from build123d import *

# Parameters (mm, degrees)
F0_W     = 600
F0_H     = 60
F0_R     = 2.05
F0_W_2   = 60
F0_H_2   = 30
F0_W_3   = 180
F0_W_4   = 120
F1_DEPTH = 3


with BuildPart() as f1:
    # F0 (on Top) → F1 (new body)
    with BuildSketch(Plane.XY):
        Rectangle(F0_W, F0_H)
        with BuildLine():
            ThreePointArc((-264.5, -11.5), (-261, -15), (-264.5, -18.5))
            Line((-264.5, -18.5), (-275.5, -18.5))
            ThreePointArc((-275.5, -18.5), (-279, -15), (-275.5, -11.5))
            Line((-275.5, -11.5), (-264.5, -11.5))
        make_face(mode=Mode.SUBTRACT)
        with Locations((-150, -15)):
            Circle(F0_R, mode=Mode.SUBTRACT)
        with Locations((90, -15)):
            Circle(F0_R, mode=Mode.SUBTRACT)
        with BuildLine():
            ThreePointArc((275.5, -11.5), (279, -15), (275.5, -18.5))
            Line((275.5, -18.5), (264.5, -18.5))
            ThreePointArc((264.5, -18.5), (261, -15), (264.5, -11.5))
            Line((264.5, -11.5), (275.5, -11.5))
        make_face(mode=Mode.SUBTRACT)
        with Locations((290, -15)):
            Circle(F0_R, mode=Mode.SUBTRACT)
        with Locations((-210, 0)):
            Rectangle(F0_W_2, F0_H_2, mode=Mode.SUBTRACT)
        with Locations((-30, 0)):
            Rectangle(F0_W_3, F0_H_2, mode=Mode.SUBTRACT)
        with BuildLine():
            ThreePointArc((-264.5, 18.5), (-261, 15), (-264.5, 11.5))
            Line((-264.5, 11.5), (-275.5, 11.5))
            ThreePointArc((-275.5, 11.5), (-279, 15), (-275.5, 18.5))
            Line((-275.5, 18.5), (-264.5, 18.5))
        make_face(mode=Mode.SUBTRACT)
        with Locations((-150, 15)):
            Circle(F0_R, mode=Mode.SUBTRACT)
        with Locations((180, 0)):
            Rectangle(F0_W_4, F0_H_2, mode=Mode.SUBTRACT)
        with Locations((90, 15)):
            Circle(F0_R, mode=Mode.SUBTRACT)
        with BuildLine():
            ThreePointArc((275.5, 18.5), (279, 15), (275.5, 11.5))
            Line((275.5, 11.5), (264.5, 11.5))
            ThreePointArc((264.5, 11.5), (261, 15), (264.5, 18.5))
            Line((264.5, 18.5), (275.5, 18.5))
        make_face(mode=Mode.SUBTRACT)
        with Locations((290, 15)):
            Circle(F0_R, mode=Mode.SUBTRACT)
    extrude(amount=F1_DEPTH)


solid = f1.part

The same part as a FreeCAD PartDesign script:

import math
import FreeCAD as App
import Part
import Sketcher

V = App.Vector

doc = App.newDocument("Part")
body = doc.addObject("PartDesign::Body", "Body")

# Sketch on XY plane
sketch1 = doc.addObject("Sketcher::SketchObject", "Sketch")
body.addObject(sketch1)
sketch1.AttachmentSupport = (doc.XY_Plane, [""])
sketch1.MapMode = "FlatFace"
sketch1.addGeometry(Part.LineSegment(V(-300, 30, 0), V(-300, -30, 0)), False)
sketch1.addGeometry(Part.LineSegment(V(-300, -30, 0), V(300, -30, 0)), False)
sketch1.addGeometry(Part.LineSegment(V(300, -30, 0), V(300, 30, 0)), False)
sketch1.addGeometry(Part.LineSegment(V(300, 30, 0), V(-300, 30, 0)), False)
sketch1.addGeometry(Part.LineSegment(V(-275.5, -11.5, 0), V(-264.5, -11.5, 0)), False)
sketch1.addGeometry(Part.ArcOfCircle(Part.Circle(V(-264.5, -15, 0), V(0, 0, 1), 3.5), math.radians(-90), math.radians(90)), False)
sketch1.addGeometry(Part.LineSegment(V(-264.5, -18.5, 0), V(-275.5, -18.5, 0)), False)
sketch1.addGeometry(Part.ArcOfCircle(Part.Circle(V(-275.5, -15, 0), V(0, 0, 1), 3.5), math.radians(90), math.radians(270)), False)
sketch1.addGeometry(Part.Circle(V(-150, -15, 0), V(0, 0, 1), 2), False)
sketch1.addGeometry(Part.Circle(V(90, -15, 0), V(0, 0, 1), 2), False)
sketch1.addGeometry(Part.LineSegment(V(264.5, -11.5, 0), V(275.5, -11.5, 0)), False)
sketch1.addGeometry(Part.ArcOfCircle(Part.Circle(V(275.5, -15, 0), V(0, 0, 1), 3.5), math.radians(-90), math.radians(90)), False)
sketch1.addGeometry(Part.LineSegment(V(275.5, -18.5, 0), V(264.5, -18.5, 0)), False)
sketch1.addGeometry(Part.ArcOfCircle(Part.Circle(V(264.5, -15, 0), V(0, 0, 1), 3.5), math.radians(90), math.radians(270)), False)
sketch1.addGeometry(Part.Circle(V(290, -15, 0), V(0, 0, 1), 2), False)
sketch1.addGeometry(Part.LineSegment(V(-180, -15, 0), V(-240, -15, 0)), False)
sketch1.addGeometry(Part.LineSegment(V(-240, -15, 0), V(-240, 15, 0)), False)
sketch1.addGeometry(Part.LineSegment(V(-240, 15, 0), V(-180, 15, 0)), False)
sketch1.addGeometry(Part.LineSegment(V(-180, 15, 0), V(-180, -15, 0)), False)
sketch1.addGeometry(Part.LineSegment(V(60, -15, 0), V(-120, -15, 0)), False)
sketch1.addGeometry(Part.LineSegment(V(-120, -15, 0), V(-120, 15, 0)), False)
sketch1.addGeometry(Part.LineSegment(V(-120, 15, 0), V(60, 15, 0)), False)
sketch1.addGeometry(Part.LineSegment(V(60, 15, 0), V(60, -15, 0)), False)
sketch1.addGeometry(Part.LineSegment(V(-275.5, 18.5, 0), V(-264.5, 18.5, 0)), False)
sketch1.addGeometry(Part.ArcOfCircle(Part.Circle(V(-264.5, 15, 0), V(0, 0, 1), 3.5), math.radians(-90), math.radians(90)), False)
sketch1.addGeometry(Part.LineSegment(V(-264.5, 11.5, 0), V(-275.5, 11.5, 0)), False)
sketch1.addGeometry(Part.ArcOfCircle(Part.Circle(V(-275.5, 15, 0), V(0, 0, 1), 3.5), math.radians(90), math.radians(270)), False)
sketch1.addGeometry(Part.Circle(V(-150, 15, 0), V(0, 0, 1), 2), False)
sketch1.addGeometry(Part.LineSegment(V(240, -15, 0), V(120, -15, 0)), False)
sketch1.addGeometry(Part.LineSegment(V(120, -15, 0), V(120, 15, 0)), False)
sketch1.addGeometry(Part.LineSegment(V(120, 15, 0), V(240, 15, 0)), False)
sketch1.addGeometry(Part.LineSegment(V(240, 15, 0), V(240, -15, 0)), False)
sketch1.addGeometry(Part.Circle(V(90, 15, 0), V(0, 0, 1), 2), False)
sketch1.addGeometry(Part.LineSegment(V(264.5, 18.5, 0), V(275.5, 18.5, 0)), False)
sketch1.addGeometry(Part.ArcOfCircle(Part.Circle(V(275.5, 15, 0), V(0, 0, 1), 3.5), math.radians(-90), math.radians(90)), False)
sketch1.addGeometry(Part.LineSegment(V(275.5, 11.5, 0), V(264.5, 11.5, 0)), False)
sketch1.addGeometry(Part.ArcOfCircle(Part.Circle(V(264.5, 15, 0), V(0, 0, 1), 3.5), math.radians(90), math.radians(270)), False)
sketch1.addGeometry(Part.Circle(V(290, 15, 0), V(0, 0, 1), 2), False)
sketch1.addConstraint(Sketcher.Constraint("Coincident", 0, 2, 1, 1))
sketch1.addConstraint(Sketcher.Constraint("Coincident", 1, 2, 2, 1))
sketch1.addConstraint(Sketcher.Constraint("Coincident", 2, 2, 3, 1))
sketch1.addConstraint(Sketcher.Constraint("Coincident", 3, 2, 0, 1))
sketch1.addConstraint(Sketcher.Constraint("Tangent", 4, 2, 5, 2))
sketch1.addConstraint(Sketcher.Constraint("Tangent", 5, 1, 6, 1))
sketch1.addConstraint(Sketcher.Constraint("Tangent", 6, 2, 7, 2))
sketch1.addConstraint(Sketcher.Constraint("Tangent", 7, 1, 4, 1))
sketch1.addConstraint(Sketcher.Constraint("Tangent", 10, 2, 11, 2))
sketch1.addConstraint(Sketcher.Constraint("Tangent", 11, 1, 12, 1))
sketch1.addConstraint(Sketcher.Constraint("Tangent", 12, 2, 13, 2))
sketch1.addConstraint(Sketcher.Constraint("Tangent", 13, 1, 10, 1))
sketch1.addConstraint(Sketcher.Constraint("Coincident", 15, 2, 16, 1))
sketch1.addConstraint(Sketcher.Constraint("Coincident", 16, 2, 17, 1))
sketch1.addConstraint(Sketcher.Constraint("Coincident", 17, 2, 18, 1))
sketch1.addConstraint(Sketcher.Constraint("Coincident", 18, 2, 15, 1))
sketch1.addConstraint(Sketcher.Constraint("Coincident", 19, 2, 20, 1))
sketch1.addConstraint(Sketcher.Constraint("Coincident", 20, 2, 21, 1))
sketch1.addConstraint(Sketcher.Constraint("Coincident", 21, 2, 22, 1))
sketch1.addConstraint(Sketcher.Constraint("Coincident", 22, 2, 19, 1))
sketch1.addConstraint(Sketcher.Constraint("Tangent", 23, 2, 24, 2))
sketch1.addConstraint(Sketcher.Constraint("Tangent", 24, 1, 25, 1))
sketch1.addConstraint(Sketcher.Constraint("Tangent", 25, 2, 26, 2))
sketch1.addConstraint(Sketcher.Constraint("Tangent", 26, 1, 23, 1))
sketch1.addConstraint(Sketcher.Constraint("Coincident", 28, 2, 29, 1))
sketch1.addConstraint(Sketcher.Constraint("Coincident", 29, 2, 30, 1))
sketch1.addConstraint(Sketcher.Constraint("Coincident", 30, 2, 31, 1))
sketch1.addConstraint(Sketcher.Constraint("Coincident", 31, 2, 28, 1))
sketch1.addConstraint(Sketcher.Constraint("Tangent", 33, 2, 34, 2))
sketch1.addConstraint(Sketcher.Constraint("Tangent", 34, 1, 35, 1))
sketch1.addConstraint(Sketcher.Constraint("Tangent", 35, 2, 36, 2))
sketch1.addConstraint(Sketcher.Constraint("Tangent", 36, 1, 33, 1))
sketch1.addConstraint(Sketcher.Constraint("Vertical", 0))
sketch1.addConstraint(Sketcher.Constraint("Horizontal", 1))
sketch1.addConstraint(Sketcher.Constraint("Vertical", 2))
sketch1.addConstraint(Sketcher.Constraint("Horizontal", 3))
sketch1.addConstraint(Sketcher.Constraint("Horizontal", 4))
sketch1.addConstraint(Sketcher.Constraint("Horizontal", 6))
sketch1.addConstraint(Sketcher.Constraint("Horizontal", 10))
sketch1.addConstraint(Sketcher.Constraint("Horizontal", 12))
sketch1.addConstraint(Sketcher.Constraint("Horizontal", 15))
sketch1.addConstraint(Sketcher.Constraint("Vertical", 16))
sketch1.addConstraint(Sketcher.Constraint("Horizontal", 17))
sketch1.addConstraint(Sketcher.Constraint("Vertical", 18))
sketch1.addConstraint(Sketcher.Constraint("Horizontal", 19))
sketch1.addConstraint(Sketcher.Constraint("Vertical", 20))
sketch1.addConstraint(Sketcher.Constraint("Horizontal", 21))
sketch1.addConstraint(Sketcher.Constraint("Vertical", 22))
sketch1.addConstraint(Sketcher.Constraint("Horizontal", 23))
sketch1.addConstraint(Sketcher.Constraint("Horizontal", 25))
sketch1.addConstraint(Sketcher.Constraint("Horizontal", 28))
sketch1.addConstraint(Sketcher.Constraint("Vertical", 29))
sketch1.addConstraint(Sketcher.Constraint("Horizontal", 30))
sketch1.addConstraint(Sketcher.Constraint("Vertical", 31))
sketch1.addConstraint(Sketcher.Constraint("Horizontal", 33))
sketch1.addConstraint(Sketcher.Constraint("Horizontal", 35))
sketch1.addConstraint(Sketcher.Constraint("Equal", 8, 9))
sketch1.addConstraint(Sketcher.Constraint("Equal", 7, 11))
sketch1.addConstraint(Sketcher.Constraint("Equal", 9, 14))
sketch1.addConstraint(Sketcher.Constraint("Equal", 13, 24))
sketch1.addConstraint(Sketcher.Constraint("Equal", 14, 27))
sketch1.addConstraint(Sketcher.Constraint("Equal", 27, 32))
sketch1.addConstraint(Sketcher.Constraint("Equal", 26, 34))
sketch1.addConstraint(Sketcher.Constraint("Equal", 32, 37))
sketch1.addConstraint(Sketcher.Constraint("Symmetric", 13, 3, 24, 3, -1, 1))
sketch1.addConstraint(Sketcher.Constraint("Symmetric", 7, 3, 34, 3, -1, 1))
sketch1.addConstraint(Sketcher.Constraint("Symmetric", 0, 2, 2, 2, -1, 1))
sketch1.addConstraint(Sketcher.Constraint("Symmetric", 20, 2, 28, 2, -1, 1))
sketch1.addConstraint(Sketcher.Constraint("Symmetric", 15, 2, 30, 2, -1, 1))
sketch1.addConstraint(Sketcher.Constraint("Symmetric", 7, 3, 11, 3, -2))
sketch1.addConstraint(Sketcher.Constraint("Symmetric", 8, 3, 27, 3, -1))
sketch1.addConstraint(Sketcher.Constraint("Symmetric", 9, 3, 32, 3, -1))
sketch1.addConstraint(Sketcher.Constraint("Symmetric", 14, 3, 37, 3, -1))
sketch1.addConstraint(Sketcher.Constraint("Horizontal", 7, 3, 8, 3))
sketch1.addConstraint(Sketcher.Constraint("Horizontal", 8, 3, 9, 3))
sketch1.addConstraint(Sketcher.Constraint("Horizontal", 13, 3, 14, 3))
sketch1.addConstraint(Sketcher.Constraint("Horizontal", 14, 3, 15, 2))
sketch1.addConstraint(Sketcher.Constraint("Horizontal", 37, 3, 16, 2))
sketch1.addConstraint(Sketcher.Constraint("Horizontal", 18, 2, 19, 2))
sketch1.addConstraint(Sketcher.Constraint("Horizontal", 17, 2, 20, 2))
sketch1.addConstraint(Sketcher.Constraint("Vertical", 5, 3, 24, 3))
sketch1.addConstraint(Sketcher.Constraint("Vertical", 7, 3, 26, 3))
sketch1.addConstraint(Sketcher.Constraint("Vertical", 13, 3, 36, 3))
sketch1.addConstraint(Sketcher.Constraint("Equal", 17, 0))
sketch1.addConstraint(Sketcher.Constraint("Diameter", 8, 4.1))
sketch1.addConstraint(Sketcher.Constraint("Radius", 5, 3.5))
sketch1.addConstraint(Sketcher.Constraint("DistanceX", 1, 1, 1, 2, 600.0))
sketch1.addConstraint(Sketcher.Constraint("DistanceX", 4, 1, 4, 2, 11.0))
sketch1.addConstraint(Sketcher.Constraint("DistanceX", 15, 2, 15, 1, 60.0))
sketch1.addConstraint(Sketcher.Constraint("DistanceX", 19, 2, 19, 1, 180.0))
sketch1.addConstraint(Sketcher.Constraint("DistanceX", 28, 2, 28, 1, 120.0))
sketch1.addConstraint(Sketcher.Constraint("DistanceY", 16, 1, 16, 2, 30.0))
sketch1.addConstraint(Sketcher.Constraint("DistanceX", 8, 3, -1, 1, 150.0))
sketch1.addConstraint(Sketcher.Constraint("DistanceX", -1, 1, 9, 3, 90.0))
sketch1.addConstraint(Sketcher.Constraint("DistanceX", -1, 1, 14, 3, 290.0))
sketch1.addConstraint(Sketcher.Constraint("DistanceX", 15, 2, -1, 1, 240.0))
sketch1.addConstraint(Sketcher.Constraint("DistanceX", 5, 3, 11, 3, 540.0))
pad1 = doc.addObject("PartDesign::Pad", "Pad")
body.addObject(pad1)
pad1.Profile = sketch1
pad1.Length = 3

doc.recompute()
